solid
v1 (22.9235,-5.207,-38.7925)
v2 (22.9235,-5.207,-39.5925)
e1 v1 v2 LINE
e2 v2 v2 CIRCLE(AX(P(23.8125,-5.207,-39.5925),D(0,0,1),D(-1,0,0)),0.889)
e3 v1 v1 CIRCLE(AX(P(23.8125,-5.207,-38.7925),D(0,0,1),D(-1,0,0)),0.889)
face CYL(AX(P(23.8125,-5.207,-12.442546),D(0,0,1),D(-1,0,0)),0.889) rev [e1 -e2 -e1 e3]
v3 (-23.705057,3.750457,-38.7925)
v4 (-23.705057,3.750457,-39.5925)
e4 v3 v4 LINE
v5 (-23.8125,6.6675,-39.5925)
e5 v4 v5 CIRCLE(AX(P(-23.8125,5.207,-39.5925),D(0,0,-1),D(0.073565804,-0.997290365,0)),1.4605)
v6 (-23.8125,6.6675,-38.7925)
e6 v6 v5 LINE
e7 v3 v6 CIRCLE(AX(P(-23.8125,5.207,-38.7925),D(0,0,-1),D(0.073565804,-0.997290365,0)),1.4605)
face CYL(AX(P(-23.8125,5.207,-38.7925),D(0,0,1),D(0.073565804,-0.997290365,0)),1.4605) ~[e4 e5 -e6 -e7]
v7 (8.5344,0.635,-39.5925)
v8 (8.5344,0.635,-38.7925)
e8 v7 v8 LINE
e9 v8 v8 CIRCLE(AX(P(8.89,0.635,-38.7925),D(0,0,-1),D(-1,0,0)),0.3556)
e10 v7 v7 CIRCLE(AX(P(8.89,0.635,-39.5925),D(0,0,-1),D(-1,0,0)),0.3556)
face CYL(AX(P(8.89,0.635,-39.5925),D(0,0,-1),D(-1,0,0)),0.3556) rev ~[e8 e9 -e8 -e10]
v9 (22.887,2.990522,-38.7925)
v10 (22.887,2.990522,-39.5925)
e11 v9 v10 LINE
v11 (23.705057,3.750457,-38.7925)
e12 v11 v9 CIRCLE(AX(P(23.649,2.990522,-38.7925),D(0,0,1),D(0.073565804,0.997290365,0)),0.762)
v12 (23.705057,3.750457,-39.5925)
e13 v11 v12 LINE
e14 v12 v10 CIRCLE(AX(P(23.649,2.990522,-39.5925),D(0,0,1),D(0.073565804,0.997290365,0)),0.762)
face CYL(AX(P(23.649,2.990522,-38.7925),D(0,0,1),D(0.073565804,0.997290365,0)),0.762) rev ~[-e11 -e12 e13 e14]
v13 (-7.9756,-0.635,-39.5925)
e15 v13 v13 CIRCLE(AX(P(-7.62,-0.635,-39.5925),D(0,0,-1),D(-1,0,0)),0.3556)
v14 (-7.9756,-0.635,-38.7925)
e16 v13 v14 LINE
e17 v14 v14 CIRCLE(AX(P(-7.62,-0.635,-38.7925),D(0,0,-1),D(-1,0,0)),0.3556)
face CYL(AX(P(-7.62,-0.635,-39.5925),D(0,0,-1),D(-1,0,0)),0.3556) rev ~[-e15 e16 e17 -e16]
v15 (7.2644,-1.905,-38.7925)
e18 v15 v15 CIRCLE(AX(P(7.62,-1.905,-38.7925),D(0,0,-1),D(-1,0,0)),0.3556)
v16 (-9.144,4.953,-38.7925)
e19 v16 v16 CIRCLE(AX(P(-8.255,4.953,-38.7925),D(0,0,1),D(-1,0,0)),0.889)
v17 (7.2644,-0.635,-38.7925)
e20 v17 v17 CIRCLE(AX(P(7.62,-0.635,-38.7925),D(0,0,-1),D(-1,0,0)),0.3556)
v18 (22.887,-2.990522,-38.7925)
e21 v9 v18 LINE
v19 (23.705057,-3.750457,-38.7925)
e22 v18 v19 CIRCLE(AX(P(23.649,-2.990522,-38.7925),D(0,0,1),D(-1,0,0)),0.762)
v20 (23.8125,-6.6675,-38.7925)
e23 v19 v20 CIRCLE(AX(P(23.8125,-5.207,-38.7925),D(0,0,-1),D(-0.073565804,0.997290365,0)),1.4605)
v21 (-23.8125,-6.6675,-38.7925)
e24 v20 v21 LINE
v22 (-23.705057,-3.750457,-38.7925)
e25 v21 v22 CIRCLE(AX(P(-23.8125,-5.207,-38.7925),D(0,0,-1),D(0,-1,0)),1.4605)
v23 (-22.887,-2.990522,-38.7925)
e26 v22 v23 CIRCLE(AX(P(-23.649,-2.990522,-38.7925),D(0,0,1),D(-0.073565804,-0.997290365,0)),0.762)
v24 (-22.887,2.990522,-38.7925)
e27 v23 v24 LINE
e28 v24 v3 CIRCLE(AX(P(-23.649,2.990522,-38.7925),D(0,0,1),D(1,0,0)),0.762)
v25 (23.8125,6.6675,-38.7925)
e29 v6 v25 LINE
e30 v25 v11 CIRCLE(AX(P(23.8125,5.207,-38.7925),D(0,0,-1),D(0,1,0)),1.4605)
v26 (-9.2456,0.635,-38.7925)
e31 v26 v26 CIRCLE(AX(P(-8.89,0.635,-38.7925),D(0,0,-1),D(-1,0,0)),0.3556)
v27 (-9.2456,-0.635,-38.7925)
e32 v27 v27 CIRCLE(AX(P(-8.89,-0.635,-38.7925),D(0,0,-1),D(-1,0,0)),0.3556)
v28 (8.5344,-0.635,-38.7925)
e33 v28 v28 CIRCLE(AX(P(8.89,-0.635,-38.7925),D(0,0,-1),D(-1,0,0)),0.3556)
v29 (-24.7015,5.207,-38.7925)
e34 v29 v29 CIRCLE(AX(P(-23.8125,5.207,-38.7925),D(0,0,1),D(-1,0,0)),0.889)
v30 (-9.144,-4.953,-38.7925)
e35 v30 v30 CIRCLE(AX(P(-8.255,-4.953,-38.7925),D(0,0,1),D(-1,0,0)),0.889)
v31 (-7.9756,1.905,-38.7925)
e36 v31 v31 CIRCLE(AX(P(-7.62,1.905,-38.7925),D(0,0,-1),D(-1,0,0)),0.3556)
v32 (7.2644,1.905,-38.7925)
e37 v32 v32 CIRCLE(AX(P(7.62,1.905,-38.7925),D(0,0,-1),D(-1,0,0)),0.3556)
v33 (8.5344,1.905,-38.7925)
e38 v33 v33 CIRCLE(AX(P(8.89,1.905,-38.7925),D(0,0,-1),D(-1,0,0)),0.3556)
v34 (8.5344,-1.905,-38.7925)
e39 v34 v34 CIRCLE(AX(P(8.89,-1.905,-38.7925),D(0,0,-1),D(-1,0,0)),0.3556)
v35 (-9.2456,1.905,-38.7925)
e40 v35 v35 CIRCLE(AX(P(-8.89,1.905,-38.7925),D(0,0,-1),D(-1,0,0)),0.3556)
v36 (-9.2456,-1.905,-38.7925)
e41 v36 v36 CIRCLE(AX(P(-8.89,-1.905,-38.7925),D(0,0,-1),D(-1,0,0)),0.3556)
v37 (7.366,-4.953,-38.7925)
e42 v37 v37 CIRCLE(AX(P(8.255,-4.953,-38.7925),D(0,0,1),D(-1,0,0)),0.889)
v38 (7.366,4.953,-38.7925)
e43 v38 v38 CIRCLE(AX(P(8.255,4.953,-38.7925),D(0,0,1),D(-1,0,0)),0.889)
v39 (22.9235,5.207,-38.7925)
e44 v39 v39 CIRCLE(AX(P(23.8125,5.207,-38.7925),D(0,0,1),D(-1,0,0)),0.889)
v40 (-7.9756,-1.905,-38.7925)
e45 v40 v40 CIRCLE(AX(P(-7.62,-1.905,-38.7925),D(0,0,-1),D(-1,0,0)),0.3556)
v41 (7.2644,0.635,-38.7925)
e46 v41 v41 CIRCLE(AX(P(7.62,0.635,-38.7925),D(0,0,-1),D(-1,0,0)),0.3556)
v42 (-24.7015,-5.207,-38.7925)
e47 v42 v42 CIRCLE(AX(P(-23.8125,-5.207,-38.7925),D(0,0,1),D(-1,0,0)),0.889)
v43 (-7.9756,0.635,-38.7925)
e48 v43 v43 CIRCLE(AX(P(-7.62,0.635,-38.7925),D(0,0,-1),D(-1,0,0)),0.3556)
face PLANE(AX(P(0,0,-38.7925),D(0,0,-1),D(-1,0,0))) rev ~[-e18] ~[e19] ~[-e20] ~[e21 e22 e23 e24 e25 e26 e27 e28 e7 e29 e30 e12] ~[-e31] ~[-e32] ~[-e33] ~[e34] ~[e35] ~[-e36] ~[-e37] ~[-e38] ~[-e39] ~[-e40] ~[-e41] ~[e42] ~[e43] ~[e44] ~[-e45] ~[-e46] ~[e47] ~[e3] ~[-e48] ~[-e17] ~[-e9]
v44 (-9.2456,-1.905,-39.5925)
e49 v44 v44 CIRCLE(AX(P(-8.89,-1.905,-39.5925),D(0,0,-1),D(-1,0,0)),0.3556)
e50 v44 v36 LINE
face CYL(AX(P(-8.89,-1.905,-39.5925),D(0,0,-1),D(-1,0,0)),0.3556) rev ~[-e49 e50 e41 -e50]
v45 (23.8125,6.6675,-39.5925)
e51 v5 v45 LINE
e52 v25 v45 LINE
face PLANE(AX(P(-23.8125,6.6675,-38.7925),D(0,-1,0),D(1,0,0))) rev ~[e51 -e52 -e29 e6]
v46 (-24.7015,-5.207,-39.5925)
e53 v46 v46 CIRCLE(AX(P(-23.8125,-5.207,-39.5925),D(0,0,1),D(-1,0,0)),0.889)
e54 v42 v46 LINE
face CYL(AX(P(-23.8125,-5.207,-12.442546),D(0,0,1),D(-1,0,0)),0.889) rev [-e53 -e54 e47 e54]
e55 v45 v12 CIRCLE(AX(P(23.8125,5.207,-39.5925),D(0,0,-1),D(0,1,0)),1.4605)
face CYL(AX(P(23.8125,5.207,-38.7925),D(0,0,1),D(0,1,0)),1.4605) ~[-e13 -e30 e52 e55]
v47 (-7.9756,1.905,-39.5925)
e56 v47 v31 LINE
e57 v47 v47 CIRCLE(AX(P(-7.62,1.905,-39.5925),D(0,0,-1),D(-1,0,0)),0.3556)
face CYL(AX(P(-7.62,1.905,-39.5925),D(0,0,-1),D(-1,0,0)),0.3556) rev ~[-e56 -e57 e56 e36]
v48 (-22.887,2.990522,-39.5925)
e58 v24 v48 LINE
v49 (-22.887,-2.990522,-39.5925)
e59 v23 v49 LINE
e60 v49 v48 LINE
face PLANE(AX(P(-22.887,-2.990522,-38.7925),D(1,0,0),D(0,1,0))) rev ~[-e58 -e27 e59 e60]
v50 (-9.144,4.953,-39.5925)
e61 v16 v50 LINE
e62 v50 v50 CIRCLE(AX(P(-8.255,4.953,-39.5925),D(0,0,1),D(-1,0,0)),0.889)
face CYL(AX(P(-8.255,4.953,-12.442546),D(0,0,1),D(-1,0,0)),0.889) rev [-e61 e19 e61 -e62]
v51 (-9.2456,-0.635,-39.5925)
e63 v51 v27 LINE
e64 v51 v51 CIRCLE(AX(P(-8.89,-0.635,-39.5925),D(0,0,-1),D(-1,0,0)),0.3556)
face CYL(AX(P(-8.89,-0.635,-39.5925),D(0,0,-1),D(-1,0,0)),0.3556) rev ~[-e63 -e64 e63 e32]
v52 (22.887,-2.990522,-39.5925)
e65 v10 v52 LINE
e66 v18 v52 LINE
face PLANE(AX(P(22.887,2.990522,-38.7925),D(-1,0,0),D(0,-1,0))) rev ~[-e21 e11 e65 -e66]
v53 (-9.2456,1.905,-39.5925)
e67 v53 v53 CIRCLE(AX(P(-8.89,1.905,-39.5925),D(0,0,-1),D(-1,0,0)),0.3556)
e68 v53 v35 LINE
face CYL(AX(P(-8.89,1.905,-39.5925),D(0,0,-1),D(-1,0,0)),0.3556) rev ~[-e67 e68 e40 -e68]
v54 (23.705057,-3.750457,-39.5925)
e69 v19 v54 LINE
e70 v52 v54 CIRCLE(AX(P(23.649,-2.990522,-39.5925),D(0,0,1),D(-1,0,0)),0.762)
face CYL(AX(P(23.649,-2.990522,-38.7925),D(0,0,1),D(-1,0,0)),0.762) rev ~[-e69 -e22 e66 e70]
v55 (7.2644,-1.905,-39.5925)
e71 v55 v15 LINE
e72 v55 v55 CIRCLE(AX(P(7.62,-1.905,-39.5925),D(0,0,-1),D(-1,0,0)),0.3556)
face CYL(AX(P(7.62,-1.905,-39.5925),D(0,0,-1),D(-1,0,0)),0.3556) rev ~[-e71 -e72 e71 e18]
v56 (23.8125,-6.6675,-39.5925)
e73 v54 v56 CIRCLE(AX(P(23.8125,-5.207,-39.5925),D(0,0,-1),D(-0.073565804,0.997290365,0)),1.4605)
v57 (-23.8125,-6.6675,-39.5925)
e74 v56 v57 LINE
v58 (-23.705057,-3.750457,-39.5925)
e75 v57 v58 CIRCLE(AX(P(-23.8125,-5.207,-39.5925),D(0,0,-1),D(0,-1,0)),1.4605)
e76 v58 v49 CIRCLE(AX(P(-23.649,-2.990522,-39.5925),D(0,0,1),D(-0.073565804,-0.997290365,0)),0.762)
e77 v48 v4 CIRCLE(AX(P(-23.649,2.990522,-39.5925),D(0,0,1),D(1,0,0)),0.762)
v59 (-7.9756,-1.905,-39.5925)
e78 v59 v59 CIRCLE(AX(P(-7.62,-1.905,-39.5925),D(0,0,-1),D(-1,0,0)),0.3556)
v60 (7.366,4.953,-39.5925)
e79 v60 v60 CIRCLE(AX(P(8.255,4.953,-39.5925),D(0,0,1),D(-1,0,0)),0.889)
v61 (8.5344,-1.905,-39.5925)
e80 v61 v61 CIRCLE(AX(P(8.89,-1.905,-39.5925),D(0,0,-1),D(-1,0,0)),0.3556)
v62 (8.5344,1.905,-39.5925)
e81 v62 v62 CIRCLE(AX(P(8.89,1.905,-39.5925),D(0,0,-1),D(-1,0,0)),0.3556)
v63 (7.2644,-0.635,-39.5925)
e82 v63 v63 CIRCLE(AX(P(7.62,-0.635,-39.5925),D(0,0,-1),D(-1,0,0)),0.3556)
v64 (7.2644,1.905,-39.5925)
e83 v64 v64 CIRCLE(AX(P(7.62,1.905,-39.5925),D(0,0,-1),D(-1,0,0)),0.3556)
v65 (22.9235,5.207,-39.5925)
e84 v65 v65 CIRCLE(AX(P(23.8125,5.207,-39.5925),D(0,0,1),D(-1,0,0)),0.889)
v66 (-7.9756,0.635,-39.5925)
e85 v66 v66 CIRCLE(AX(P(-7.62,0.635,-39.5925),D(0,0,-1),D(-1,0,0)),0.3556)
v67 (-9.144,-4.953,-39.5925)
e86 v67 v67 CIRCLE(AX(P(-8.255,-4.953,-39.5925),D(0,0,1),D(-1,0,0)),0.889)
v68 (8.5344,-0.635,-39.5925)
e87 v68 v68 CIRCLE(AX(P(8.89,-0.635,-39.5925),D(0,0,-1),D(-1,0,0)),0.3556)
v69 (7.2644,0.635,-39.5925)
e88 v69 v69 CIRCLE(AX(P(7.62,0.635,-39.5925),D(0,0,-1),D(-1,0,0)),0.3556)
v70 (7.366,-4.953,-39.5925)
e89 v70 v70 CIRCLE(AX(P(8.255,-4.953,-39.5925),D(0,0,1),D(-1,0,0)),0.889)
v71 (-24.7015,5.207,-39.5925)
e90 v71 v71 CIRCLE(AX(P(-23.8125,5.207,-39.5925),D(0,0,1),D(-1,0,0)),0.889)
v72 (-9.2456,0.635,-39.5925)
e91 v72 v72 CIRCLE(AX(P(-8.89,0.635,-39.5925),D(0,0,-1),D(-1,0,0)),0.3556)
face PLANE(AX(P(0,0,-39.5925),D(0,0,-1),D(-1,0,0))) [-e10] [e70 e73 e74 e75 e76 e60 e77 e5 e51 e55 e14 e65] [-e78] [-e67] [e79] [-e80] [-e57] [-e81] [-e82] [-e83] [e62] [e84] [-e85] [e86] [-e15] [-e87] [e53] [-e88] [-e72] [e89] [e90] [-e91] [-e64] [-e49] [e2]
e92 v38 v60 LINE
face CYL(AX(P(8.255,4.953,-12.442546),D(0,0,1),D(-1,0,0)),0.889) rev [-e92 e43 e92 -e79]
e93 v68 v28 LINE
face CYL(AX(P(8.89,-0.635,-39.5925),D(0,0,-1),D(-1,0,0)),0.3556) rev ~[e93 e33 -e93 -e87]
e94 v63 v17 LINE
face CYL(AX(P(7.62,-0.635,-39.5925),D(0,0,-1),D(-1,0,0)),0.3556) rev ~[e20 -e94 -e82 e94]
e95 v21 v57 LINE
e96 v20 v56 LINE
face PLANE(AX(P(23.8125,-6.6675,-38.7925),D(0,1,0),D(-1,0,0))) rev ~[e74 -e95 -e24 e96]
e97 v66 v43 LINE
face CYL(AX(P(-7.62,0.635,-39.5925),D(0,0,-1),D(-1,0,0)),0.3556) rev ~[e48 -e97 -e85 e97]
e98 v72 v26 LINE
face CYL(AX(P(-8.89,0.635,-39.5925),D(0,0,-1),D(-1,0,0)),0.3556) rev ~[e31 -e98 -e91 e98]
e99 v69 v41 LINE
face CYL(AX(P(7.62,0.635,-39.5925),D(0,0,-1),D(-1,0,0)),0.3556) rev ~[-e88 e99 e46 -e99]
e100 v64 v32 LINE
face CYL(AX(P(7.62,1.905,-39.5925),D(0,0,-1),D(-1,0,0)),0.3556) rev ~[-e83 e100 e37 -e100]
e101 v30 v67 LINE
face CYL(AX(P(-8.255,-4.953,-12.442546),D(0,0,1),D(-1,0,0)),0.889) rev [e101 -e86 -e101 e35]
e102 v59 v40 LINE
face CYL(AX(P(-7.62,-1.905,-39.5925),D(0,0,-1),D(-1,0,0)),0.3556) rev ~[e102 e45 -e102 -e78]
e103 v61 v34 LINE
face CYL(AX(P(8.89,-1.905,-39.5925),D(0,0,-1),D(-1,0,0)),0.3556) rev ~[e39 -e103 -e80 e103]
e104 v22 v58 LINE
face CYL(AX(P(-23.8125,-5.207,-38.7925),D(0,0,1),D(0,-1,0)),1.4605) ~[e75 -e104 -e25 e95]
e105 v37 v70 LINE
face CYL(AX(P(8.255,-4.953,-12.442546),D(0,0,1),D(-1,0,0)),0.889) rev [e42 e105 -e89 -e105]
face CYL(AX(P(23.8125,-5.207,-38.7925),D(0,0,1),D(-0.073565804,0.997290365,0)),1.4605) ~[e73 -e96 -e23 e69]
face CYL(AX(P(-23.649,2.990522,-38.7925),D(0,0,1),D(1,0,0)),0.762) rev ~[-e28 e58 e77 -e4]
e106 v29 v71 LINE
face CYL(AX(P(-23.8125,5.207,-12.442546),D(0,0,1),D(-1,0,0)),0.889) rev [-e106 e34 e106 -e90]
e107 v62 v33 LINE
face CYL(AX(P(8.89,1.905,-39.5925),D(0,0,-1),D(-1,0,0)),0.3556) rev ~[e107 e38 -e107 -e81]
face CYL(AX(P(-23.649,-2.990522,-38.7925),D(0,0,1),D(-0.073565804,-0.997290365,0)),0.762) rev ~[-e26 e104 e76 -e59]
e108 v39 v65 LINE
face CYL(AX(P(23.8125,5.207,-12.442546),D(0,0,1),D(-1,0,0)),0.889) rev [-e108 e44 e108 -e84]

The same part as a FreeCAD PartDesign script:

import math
import FreeCAD as App
import Part
import Sketcher

V = App.Vector
Q = App.Units.Quantity

doc = App.newDocument("Part")
params = doc.addObject("Spreadsheet::Sheet", "Params")
for row, (alias, value) in enumerate([
    ("sketch1_radius", "0.03 in"),
    ("sketch1_width", "1.875 in"),
    ("pad1_length", "0.8 mm"),
    ("sketch2_diameter", "0.028 in"),
    ("sketch3_diameter", "0.07 in"),
], start=1):
    params.set(f"A{row}", alias)
    params.set(f"B{row}", "=" + value)
    params.setAlias(f"B{row}", alias)

body = doc.addObject("PartDesign::Body", "Body")

# Sketch on XY plane
sketch1 = body.newObject("Sketcher::SketchObject", "Sketch")
sketch1.AttachmentSupport = (doc.getObject("XY_Plane"), [""])
sketch1.MapMode = "FlatFace"
sketch1.AttachmentOffset = App.Placement(V(0, 0, -38.7925), App.Rotation())
sketch1.addGeometry([
    Part.LineSegment(V(-23.8, 6.7, 0), V(23.8, 6.7, 0)),  # 0
    Part.ArcOfCircle(Part.Circle(V(23.8, 5.2, 0), V(0, 0, 1), 1.5), math.radians(-94), math.radians(90)),  # 1
    Part.ArcOfCircle(Part.Circle(V(23.6, 3, 0), V(0, 0, 1), 0.8), math.radians(86), math.radians(180)),  # 2
    Part.LineSegment(V(22.9, 3, 0), V(22.9, -3, 0)),  # 3
    Part.ArcOfCircle(Part.Circle(V(23.6, -3, 0), V(0, 0, 1), 0.8), math.radians(180), math.radians(274)),  # 4
    Part.ArcOfCircle(Part.Circle(V(23.8, -5.2, 0), V(0, 0, 1), 1.5), math.radians(-90), math.radians(94)),  # 5
    Part.LineSegment(V(23.8, -6.7, 0), V(-23.8, -6.7, 0)),  # 6
    Part.ArcOfCircle(Part.Circle(V(-23.8, -5.2, 0), V(0, 0, 1), 1.5), math.radians(86), math.radians(270)),  # 7
    Part.ArcOfCircle(Part.Circle(V(-23.6, -3, 0), V(0, 0, 1), 0.8), math.radians(-94), math.radians(0)),  # 8
    Part.LineSegment(V(-22.9, -3, 0), V(-22.9, 3, 0)),  # 9
    Part.ArcOfCircle(Part.Circle(V(-23.6, 3, 0), V(0, 0, 1), 0.8), math.radians(0), math.radians(94)),  # 10
    Part.ArcOfCircle(Part.Circle(V(-23.8, 5.2, 0), V(0, 0, 1), 1.5), math.radians(90), math.radians(274)),  # 11
], False)
sketch1.addConstraint([
    Sketcher.Constraint("Tangent", 0, 2, 1, 2),
    Sketcher.Constraint("Tangent", 1, 1, 2, 1),
    Sketcher.Constraint("Tangent", 2, 2, 3, 1),
    Sketcher.Constraint("Tangent", 3, 2, 4, 1),
    Sketcher.Constraint("Tangent", 4, 2, 5, 2),
    Sketcher.Constraint("Tangent", 5, 1, 6, 1),
    Sketcher.Constraint("Tangent", 6, 2, 7, 2),
    Sketcher.Constraint("Tangent", 7, 1, 8, 1),
    Sketcher.Constraint("Tangent", 8, 2, 9, 1),
    Sketcher.Constraint("Tangent", 9, 2, 10, 1),
    Sketcher.Constraint("Tangent", 10, 2, 11, 2),
    Sketcher.Constraint("Tangent", 11, 1, 0, 1),
    Sketcher.Constraint("Horizontal", 0),
    Sketcher.Constraint("Vertical", 3),
    Sketcher.Constraint("Horizontal", 6),
    Sketcher.Constraint("Vertical", 9),
    Sketcher.Constraint("Equal", 2, 4),
    Sketcher.Constraint("Equal", 1, 5),
    Sketcher.Constraint("Equal", 5, 7),
    Sketcher.Constraint("Equal", 4, 8),
    Sketcher.Constraint("Equal", 8, 10),
    Sketcher.Constraint("Equal", 7, 11),
    Sketcher.Constraint("Symmetric", 1, 3, 7, 3, -1, 1),
    Sketcher.Constraint("Symmetric", 4, 3, 10, 3, -1, 1),
    Sketcher.Constraint("Horizontal", 4, 3, 8, 3),
    Sketcher.Constraint("Radius", 2, Q("0.03 in")),
    Sketcher.Constraint("Radius", 1, Q("0.0575 in")),
    Sketcher.Constraint("DistanceX", 0, 1, 0, 2, Q("1.875 in")),
    Sketcher.Constraint("DistanceY", 5, 3, 1, 3, Q("0.41 in")),
    Sketcher.Constraint("DistanceX", -1, 1, 2, 3, Q("23.649 mm")),
])
sketch1.setExpression("Constraints[25]", "Params.sketch1_radius")
sketch1.setExpression("Constraints[27]", "Params.sketch1_width")
pad1 = body.newObject("PartDesign::Pad", "Pad")
pad1.Profile = sketch1
pad1.setExpression("Length", "Params.pad1_length")
pad1.Reversed = True

# Sketch on XY plane
sketch2 = body.newObject("Sketcher::SketchObject", "Sketch001")
sketch2.AttachmentSupport = (doc.getObject("XY_Plane"), [""])
sketch2.MapMode = "FlatFace"
sketch2.AttachmentOffset = App.Placement(V(0, 0, -39.5925), App.Rotation())
sketch2.addGeometry([
    Part.Circle(V(7.62, -1.91, 0), V(0, 0, 1), 0.36),  # 0
    Part.Circle(V(8.89, -1.91, 0), V(0, 0, 1), 0.36),  # 1
    Part.Circle(V(7.62, 1.91, 0), V(0, 0, 1), 0.36),  # 2
    Part.Circle(V(8.89, 1.91, 0), V(0, 0, 1), 0.36),  # 3
    Part.Circle(V(7.62, 0.64, 0), V(0, 0, 1), 0.36),  # 4
    Part.Circle(V(8.89, 0.64, 0), V(0, 0, 1), 0.36),  # 5
    Part.Circle(V(7.62, -0.64, 0), V(0, 0, 1), 0.36),  # 6
    Part.Circle(V(8.89, -0.64, 0), V(0, 0, 1), 0.36),  # 7
    Part.Circle(V(-8.89, 1.91, 0), V(0, 0, 1), 0.36),  # 8
    Part.Circle(V(-7.62, 1.91, 0), V(0, 0, 1), 0.36),  # 9
    Part.Circle(V(-8.89, -1.91, 0), V(0, 0, 1), 0.36),  # 10
    Part.Circle(V(-7.62, -1.91, 0), V(0, 0, 1), 0.36),  # 11
    Part.Circle(V(-8.89, -0.64, 0), V(0, 0, 1), 0.36),  # 12
    Part.Circle(V(-7.62, -0.64, 0), V(0, 0, 1), 0.36),  # 13
    Part.Circle(V(-8.89, 0.64, 0), V(0, 0, 1), 0.36),  # 14
    Part.Circle(V(-7.62, 0.64, 0), V(0, 0, 1), 0.36),  # 15
], False)
sketch2.addConstraint([
    Sketcher.Constraint("Equal", 0, 1),
    Sketcher.Constraint("Equal", 1, 2),
    Sketcher.Constraint("Equal", 2, 3),
    Sketcher.Constraint("Equal", 3, 4),
    Sketcher.Constraint("Equal", 4, 5),
    Sketcher.Constraint("Equal", 5, 6),
    Sketcher.Constraint("Equal", 6, 7),
    Sketcher.Constraint("Equal", 7, 8),
    Sketcher.Constraint("Equal", 8, 9),
    Sketcher.Constraint("Equal", 9, 10),
    Sketcher.Constraint("Equal", 10, 11),
    Sketcher.Constraint("Equal", 11, 12),
    Sketcher.Constraint("Equal", 12, 13),
    Sketcher.Constraint("Equal", 13, 14),
    Sketcher.Constraint("Equal", 14, 15),
    Sketcher.Constraint("Symmetric", 1, 3, 8, 3, -1, 1),
    Sketcher.Constraint("Symmetric", 0, 3, 9, 3, -1, 1),
    Sketcher.Constraint("Symmetric", 3, 3, 10, 3, -1, 1),
    Sketcher.Constraint("Symmetric", 2, 3, 11, 3, -1, 1),
    Sketcher.Constraint("Symmetric", 5, 3, 12, 3, -1, 1),
    Sketcher.Constraint("Symmetric", 4, 3, 13, 3, -1, 1),
    Sketcher.Constraint("Symmetric", 7, 3, 14, 3, -1, 1),
    Sketcher.Constraint("Symmetric", 6, 3, 15, 3, -1, 1),
    Sketcher.Constraint("Symmetric", 3, 3, 8, 3, -2),
    Sketcher.Constraint("Symmetric", 2, 3, 9, 3, -2),
    Sketcher.Constraint("Symmetric", 7, 3, 12, 3, -2),
    Sketcher.Constraint("Symmetric", 6, 3, 13, 3, -2),
    Sketcher.Constraint("Horizontal", 0, 3, 1, 3),
    Sketcher.Constraint("Horizontal", 4, 3, 5, 3),
    Sketcher.Constraint("Vertical", 2, 3, 4, 3),
    Sketcher.Constraint("Vertical", 3, 3, 5, 3),
    Sketcher.Constraint("Diameter", 0, Q("0.028 in")),
    Sketcher.Constraint("DistanceX", -1, 1, 0, 3, Q("0.3 in")),
    Sketcher.Constraint("DistanceY", 0, 3, 4, 3, Q("0.1 in")),
    Sketcher.Constraint("DistanceX", 8, 3, 3, 3, Q("0.7 in")),
    Sketcher.Constraint("DistanceY", 0, 3, 2, 3, Q("0.15 in")),
])
sketch2.setExpression("Constraints[31]", "Params.sketch2_diameter")
pocket1 = body.newObject("PartDesign::Pocket", "Pocket")
pocket1.Profile = sketch2
pocket1.Type = "ThroughAll"
pocket1.Reversed = True

# Sketch on XY plane
sketch3 = body.newObject("Sketcher::SketchObject", "Sketch002")
sketch3.AttachmentSupport = (doc.getObject("XY_Plane"), [""])
sketch3.MapMode = "FlatFace"
sketch3.AttachmentOffset = App.Placement(V(0, 0, -39.5925), App.Rotation())
sketch3.addGeometry([
    Part.Circle(V(23.8, 5.2, 0), V(0, 0, 1), 0.9),  # 0
    Part.Circle(V(23.8, -5.2, 0), V(0, 0, 1), 0.9),  # 1
    Part.Circle(V(-23.8, 5.2, 0), V(0, 0, 1), 0.9),  # 2
    Part.Circle(V(-23.8, -5.2, 0), V(0, 0, 1), 0.9),  # 3
    Part.Circle(V(8.3, 5, 0), V(0, 0, 1), 0.9),  # 4
    Part.Circle(V(-8.3, 5, 0), V(0, 0, 1), 0.9),  # 5
    Part.Circle(V(-8.3, -5, 0), V(0, 0, 1), 0.9),  # 6
    Part.Circle(V(8.3, -5, 0), V(0, 0, 1), 0.9),  # 7
], False)
sketch3.addConstraint([
    Sketcher.Constraint("Equal", 0, 1),
    Sketcher.Constraint("Equal", 1, 2),
    Sketcher.Constraint("Equal", 2, 3),
    Sketcher.Constraint("Equal", 3, 4),
    Sketcher.Constraint("Equal", 4, 5),
    Sketcher.Constraint("Equal", 5, 6),
    Sketcher.Constraint("Equal", 6, 7),
    Sketcher.Constraint("Symmetric", 1, 3, 2, 3, -1, 1),
    Sketcher.Constraint("Symmetric", 0, 3, 3, 3, -1, 1),
    Sketcher.Constraint("Symmetric", 4, 3, 6, 3, -1, 1),
    Sketcher.Constraint("Symmetric", 5, 3, 7, 3, -1, 1),
    Sketcher.Constraint("Symmetric", 0, 3, 2, 3, -2),
    Sketcher.Constraint("Symmetric", 4, 3, 5, 3, -2),
    Sketcher.Constraint("Diameter", 0, Q("0.07 in")),
    Sketcher.Constraint("DistanceY", 1, 3, 4, 3, Q("0.4 in")),
    Sketcher.Constraint("DistanceY", 1, 3, 0, 3, Q("0.41 in")),
    Sketcher.Constraint("DistanceX", 5, 3, 4, 3, Q("0.65 in")),
    Sketcher.Constraint("DistanceX", -1, 1, 0, 3, Q("0.9375 in")),
])
sketch3.setExpression("Constraints[13]", "Params.sketch3_diameter")
pocket2 = body.newObject("PartDesign::Pocket", "Pocket001")
pocket2.Profile = sketch3
pocket2.Type = "ThroughAll"
pocket2.Midplane = True

doc.recompute()
